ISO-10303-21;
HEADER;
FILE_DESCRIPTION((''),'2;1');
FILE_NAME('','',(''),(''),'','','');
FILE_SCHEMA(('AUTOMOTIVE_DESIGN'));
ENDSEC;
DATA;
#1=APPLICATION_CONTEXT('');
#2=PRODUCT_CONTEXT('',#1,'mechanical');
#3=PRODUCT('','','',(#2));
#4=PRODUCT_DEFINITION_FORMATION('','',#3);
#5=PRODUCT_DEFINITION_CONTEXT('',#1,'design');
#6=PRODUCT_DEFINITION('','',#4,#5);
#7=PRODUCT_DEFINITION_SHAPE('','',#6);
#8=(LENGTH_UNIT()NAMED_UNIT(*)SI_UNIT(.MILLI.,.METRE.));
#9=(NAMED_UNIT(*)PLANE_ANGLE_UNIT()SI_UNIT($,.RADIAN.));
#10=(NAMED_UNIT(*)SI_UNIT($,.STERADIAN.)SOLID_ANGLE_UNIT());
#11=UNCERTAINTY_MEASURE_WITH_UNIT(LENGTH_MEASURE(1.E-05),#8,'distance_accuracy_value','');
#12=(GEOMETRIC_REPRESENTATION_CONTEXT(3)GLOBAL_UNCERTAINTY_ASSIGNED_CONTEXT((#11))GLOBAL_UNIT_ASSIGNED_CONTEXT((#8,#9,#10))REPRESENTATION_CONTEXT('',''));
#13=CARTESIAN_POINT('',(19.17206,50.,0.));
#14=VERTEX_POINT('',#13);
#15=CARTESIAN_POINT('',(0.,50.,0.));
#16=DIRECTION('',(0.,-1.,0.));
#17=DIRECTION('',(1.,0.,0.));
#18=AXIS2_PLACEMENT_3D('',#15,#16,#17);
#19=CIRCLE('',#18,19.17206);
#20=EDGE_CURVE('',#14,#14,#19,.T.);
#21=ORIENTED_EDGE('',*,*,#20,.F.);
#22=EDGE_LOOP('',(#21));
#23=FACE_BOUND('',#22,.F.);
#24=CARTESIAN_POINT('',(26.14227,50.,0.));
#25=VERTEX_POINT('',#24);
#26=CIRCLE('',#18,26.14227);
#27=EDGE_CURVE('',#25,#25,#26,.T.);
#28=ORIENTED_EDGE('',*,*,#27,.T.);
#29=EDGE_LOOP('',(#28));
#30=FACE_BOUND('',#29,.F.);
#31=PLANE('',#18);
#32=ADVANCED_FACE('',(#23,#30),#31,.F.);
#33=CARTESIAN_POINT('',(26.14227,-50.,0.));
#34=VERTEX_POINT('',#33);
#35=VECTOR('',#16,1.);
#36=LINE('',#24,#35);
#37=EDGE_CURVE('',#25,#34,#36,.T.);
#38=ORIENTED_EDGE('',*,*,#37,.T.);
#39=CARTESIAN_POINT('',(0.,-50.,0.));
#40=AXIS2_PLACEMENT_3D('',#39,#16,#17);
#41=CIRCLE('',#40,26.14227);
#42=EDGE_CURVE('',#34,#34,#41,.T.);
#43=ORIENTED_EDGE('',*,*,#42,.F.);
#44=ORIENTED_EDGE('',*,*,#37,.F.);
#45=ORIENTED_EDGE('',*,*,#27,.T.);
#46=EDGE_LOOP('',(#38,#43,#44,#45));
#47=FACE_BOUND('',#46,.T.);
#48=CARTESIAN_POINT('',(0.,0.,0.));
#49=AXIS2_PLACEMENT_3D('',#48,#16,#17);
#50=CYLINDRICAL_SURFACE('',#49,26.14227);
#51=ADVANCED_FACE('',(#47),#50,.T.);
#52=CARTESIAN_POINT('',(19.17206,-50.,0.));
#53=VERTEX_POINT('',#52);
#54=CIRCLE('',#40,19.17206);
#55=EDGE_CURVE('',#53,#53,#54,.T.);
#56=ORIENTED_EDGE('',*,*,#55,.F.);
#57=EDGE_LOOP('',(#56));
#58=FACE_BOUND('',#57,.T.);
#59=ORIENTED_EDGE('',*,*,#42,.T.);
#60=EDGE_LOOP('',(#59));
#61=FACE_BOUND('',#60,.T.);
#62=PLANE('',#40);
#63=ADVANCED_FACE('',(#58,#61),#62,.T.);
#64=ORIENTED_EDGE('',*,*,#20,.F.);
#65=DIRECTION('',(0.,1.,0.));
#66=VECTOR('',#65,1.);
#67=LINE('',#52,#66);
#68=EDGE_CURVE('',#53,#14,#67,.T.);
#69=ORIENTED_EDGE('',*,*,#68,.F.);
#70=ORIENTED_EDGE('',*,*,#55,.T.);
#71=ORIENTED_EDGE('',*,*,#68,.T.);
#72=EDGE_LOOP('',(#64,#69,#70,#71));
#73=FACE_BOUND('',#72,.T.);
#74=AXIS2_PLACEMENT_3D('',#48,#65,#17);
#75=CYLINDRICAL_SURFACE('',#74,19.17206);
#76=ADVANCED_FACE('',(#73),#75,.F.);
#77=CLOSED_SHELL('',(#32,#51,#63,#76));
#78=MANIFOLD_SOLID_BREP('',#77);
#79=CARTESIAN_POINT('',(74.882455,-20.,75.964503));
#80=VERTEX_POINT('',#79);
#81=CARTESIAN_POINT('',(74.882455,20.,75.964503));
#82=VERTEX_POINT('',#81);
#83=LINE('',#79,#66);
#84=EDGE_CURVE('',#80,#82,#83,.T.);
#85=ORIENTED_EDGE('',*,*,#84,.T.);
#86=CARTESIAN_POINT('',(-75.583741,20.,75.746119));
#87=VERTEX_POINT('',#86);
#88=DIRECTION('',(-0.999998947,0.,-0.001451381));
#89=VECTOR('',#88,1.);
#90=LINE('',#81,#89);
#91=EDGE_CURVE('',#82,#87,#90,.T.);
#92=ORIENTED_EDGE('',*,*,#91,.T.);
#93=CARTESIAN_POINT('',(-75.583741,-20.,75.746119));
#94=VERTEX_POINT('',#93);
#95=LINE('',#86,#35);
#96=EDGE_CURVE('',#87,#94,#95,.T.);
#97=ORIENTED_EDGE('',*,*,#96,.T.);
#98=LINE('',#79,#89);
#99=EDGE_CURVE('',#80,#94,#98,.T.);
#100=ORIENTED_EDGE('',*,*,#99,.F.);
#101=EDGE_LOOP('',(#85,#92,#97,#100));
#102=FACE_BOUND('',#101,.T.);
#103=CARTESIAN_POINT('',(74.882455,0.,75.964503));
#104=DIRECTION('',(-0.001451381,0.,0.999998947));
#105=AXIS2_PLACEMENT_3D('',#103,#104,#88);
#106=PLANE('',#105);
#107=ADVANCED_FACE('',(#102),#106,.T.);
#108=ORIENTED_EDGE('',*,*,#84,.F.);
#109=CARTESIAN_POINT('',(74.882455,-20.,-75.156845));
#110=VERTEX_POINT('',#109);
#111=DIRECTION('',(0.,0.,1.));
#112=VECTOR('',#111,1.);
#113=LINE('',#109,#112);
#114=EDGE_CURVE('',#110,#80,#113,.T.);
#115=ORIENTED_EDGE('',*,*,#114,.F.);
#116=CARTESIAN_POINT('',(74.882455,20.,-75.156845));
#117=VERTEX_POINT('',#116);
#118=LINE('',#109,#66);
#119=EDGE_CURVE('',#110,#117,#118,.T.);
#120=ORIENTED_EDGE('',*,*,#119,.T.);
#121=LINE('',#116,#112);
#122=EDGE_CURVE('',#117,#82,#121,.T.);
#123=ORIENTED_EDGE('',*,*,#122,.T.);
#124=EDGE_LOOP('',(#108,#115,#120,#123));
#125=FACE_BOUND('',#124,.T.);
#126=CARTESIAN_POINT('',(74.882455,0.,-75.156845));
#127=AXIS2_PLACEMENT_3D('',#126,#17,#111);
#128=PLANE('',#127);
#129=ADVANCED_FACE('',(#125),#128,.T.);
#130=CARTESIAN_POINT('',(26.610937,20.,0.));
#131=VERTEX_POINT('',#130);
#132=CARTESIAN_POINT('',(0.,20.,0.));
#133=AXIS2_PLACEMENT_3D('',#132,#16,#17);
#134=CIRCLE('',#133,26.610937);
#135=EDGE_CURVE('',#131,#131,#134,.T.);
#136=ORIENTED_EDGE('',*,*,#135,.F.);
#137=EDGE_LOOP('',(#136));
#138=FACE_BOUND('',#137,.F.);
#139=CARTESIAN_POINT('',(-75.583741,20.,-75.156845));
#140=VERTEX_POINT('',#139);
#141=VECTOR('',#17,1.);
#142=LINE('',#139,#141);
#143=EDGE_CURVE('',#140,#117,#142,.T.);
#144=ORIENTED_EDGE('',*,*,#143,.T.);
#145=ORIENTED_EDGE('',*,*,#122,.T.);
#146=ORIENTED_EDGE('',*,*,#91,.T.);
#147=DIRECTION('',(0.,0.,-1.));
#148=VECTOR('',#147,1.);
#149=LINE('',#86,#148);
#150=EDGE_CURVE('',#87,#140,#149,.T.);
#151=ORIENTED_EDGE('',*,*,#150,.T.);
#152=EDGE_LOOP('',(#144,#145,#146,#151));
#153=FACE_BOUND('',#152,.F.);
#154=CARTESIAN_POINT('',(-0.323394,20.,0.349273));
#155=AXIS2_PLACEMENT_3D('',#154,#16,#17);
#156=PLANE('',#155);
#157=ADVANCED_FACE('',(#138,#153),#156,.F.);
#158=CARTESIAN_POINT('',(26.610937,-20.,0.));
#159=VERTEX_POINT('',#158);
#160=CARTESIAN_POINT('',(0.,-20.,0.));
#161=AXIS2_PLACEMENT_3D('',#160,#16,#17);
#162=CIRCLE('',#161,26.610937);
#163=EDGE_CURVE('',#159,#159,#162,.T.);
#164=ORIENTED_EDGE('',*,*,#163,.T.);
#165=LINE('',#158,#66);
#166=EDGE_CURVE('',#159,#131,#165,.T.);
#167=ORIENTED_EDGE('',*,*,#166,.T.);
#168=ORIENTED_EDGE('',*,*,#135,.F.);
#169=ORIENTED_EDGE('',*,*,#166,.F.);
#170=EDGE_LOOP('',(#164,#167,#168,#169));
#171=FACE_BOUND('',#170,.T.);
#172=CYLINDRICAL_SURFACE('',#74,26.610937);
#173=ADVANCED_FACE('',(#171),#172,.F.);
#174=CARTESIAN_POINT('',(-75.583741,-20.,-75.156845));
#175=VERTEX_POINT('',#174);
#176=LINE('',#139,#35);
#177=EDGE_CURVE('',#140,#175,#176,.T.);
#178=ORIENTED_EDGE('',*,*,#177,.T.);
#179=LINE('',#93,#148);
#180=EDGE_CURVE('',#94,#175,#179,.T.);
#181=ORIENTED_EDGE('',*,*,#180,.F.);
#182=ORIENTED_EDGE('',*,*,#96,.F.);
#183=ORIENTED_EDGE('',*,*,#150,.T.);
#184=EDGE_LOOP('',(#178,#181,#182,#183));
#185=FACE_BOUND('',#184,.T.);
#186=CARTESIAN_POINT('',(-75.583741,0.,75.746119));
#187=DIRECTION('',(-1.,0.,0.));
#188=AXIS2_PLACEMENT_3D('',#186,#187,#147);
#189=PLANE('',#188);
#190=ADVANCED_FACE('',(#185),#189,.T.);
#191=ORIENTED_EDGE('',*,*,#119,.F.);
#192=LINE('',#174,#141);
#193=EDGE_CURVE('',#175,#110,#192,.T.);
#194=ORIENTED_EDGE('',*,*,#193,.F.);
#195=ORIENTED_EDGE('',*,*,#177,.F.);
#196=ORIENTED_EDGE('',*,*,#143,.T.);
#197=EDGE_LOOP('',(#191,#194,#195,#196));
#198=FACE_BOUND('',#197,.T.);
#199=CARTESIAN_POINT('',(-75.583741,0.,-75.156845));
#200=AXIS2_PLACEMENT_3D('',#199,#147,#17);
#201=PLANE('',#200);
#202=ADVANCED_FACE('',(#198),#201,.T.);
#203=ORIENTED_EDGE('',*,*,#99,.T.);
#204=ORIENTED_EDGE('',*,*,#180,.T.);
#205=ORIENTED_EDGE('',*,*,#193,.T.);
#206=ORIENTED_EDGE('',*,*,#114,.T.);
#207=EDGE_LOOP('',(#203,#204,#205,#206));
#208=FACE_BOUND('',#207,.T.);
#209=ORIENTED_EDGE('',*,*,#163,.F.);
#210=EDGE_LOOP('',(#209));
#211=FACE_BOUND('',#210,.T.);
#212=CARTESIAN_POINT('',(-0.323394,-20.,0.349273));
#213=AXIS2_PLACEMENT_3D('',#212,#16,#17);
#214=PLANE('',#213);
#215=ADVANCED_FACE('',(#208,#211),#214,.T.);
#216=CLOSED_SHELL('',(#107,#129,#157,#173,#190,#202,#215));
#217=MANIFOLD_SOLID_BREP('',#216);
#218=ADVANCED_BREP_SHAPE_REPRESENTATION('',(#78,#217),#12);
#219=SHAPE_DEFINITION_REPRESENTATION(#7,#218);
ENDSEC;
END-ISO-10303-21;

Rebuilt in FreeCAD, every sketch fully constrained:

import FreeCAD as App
import Part
import Sketcher

doc = App.newDocument("Part")
body = doc.addObject("PartDesign::Body", "Body")

# Sketch on XZ plane
sketch1 = body.newObject("Sketcher::SketchObject", "Sketch")
sketch1.AttachmentSupport = (doc.getObject("XZ_Plane"), [""])
sketch1.MapMode = "FlatFace"
sketch1.addGeometry([
    Part.Circle(App.Vector(0, 0, 0), App.Vector(0, 0, 1), 26.14227),
    Part.Circle(App.Vector(0, 0, 0), App.Vector(0, 0, 1), 19.17206),
], False)
sketch1.addConstraint([
    Sketcher.Constraint("Coincident", 0, 3, -1, 1),
    Sketcher.Constraint("Coincident", 1, 3, -1, 1),
    Sketcher.Constraint("Diameter", 0, 52.28454),
    Sketcher.Constraint("Diameter", 1, 38.34412),
])
pad1 = body.newObject("PartDesign::Pad", "Pad")
pad1.Profile = sketch1
pad1.Length = 100
pad1.Midplane = True
body2 = doc.addObject("PartDesign::Body", "Body001")

# Sketch on XZ plane
sketch2 = body2.newObject("Sketcher::SketchObject", "Sketch001")
sketch2.AttachmentSupport = (doc.getObject("XZ_Plane001"), [""])
sketch2.MapMode = "FlatFace"
sketch2.addGeometry([
    Part.LineSegment(App.Vector(74.882455, 75.964503, 0), App.Vector(-75.583741, 75.746119, 0)),  # 0
    Part.LineSegment(App.Vector(-75.583741, 75.746119, 0), App.Vector(-75.583741, -75.156845, 0)),  # 1
    Part.LineSegment(App.Vector(-75.583741, -75.156845, 0), App.Vector(74.882455, -75.156845, 0)),  # 2
    Part.LineSegment(App.Vector(74.882455, -75.156845, 0), App.Vector(74.882455, 75.964503, 0)),  # 3
    Part.Circle(App.Vector(0, 0, 0), App.Vector(0, 0, 1), 26.610937),  # 4
], False)
sketch2.addConstraint([
    Sketcher.Constraint("Coincident", 0, 2, 1, 1),
    Sketcher.Constraint("Coincident", 1, 2, 2, 1),
    Sketcher.Constraint("Coincident", 2, 2, 3, 1),
    Sketcher.Constraint("Coincident", 3, 2, 0, 1),
    Sketcher.Constraint("Vertical", 1),
    Sketcher.Constraint("Horizontal", 2),
    Sketcher.Constraint("Vertical", 3),
    Sketcher.Constraint("Coincident", 4, 3, -1, 1),
    Sketcher.Constraint("Diameter", 4, 53.221874),
    Sketcher.Constraint("DistanceY", 3, 1, 3, 2, 151.121348),
    Sketcher.Constraint("DistanceX", 2, 1, 2, 2, 150.466196),
    Sketcher.Constraint("DistanceY", 1, 2, 1, 1, 150.902964),
    Sketcher.Constraint("DistanceX", 0, 2, -1, 1, 75.583741),
    Sketcher.Constraint("DistanceY", -1, 1, 0, 2, 75.746119),
])
pad2 = body2.newObject("PartDesign::Pad", "Pad001")
pad2.Profile = sketch2
pad2.Length = 40
pad2.Midplane = True

doc.recompute()
